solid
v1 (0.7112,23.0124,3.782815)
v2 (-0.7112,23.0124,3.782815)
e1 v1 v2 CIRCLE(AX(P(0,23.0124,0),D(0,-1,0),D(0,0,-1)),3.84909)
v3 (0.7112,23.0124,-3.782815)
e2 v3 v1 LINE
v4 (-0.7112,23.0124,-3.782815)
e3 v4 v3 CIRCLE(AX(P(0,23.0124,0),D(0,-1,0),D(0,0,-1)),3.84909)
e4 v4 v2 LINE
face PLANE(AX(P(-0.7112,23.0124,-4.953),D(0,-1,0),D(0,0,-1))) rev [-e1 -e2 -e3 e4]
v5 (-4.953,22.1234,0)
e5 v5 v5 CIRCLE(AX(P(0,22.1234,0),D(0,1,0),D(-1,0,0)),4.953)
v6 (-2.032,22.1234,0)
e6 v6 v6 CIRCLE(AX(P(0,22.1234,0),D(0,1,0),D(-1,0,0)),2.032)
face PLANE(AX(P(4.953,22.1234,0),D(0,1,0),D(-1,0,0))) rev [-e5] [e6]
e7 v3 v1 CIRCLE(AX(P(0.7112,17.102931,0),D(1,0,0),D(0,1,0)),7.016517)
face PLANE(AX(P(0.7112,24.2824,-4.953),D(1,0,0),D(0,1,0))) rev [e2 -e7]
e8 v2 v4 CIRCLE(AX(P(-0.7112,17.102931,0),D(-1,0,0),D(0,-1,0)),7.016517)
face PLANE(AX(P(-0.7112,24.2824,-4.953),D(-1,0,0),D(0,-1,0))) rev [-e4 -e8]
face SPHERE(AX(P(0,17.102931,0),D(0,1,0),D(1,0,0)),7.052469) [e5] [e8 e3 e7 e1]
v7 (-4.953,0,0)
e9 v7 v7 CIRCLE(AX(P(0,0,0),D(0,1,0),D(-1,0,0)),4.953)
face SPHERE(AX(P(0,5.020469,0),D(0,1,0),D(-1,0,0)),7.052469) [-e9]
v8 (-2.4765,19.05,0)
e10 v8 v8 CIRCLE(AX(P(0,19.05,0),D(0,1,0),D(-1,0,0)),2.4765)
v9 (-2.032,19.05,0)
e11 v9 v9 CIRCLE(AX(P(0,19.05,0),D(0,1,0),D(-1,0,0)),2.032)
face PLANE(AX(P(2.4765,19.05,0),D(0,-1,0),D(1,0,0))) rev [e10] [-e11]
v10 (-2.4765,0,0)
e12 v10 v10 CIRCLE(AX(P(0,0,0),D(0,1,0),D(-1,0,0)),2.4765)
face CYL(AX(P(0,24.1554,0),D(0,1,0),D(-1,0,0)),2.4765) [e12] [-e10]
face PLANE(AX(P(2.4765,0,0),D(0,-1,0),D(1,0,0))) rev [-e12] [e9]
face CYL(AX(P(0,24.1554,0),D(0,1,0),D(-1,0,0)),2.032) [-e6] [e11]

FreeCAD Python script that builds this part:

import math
import FreeCAD as App
import Part
import Sketcher
Q = App.Units.Quantity

doc = App.newDocument("Part")
body = doc.addObject("PartDesign::Body", "Body")

# Sketch on XY plane
sketch1 = body.newObject("Sketcher::SketchObject", "Sketch")
sketch1.AttachmentSupport = (doc.getObject("XY_Plane"), [""])
sketch1.MapMode = "FlatFace"
sketch1.addGeometry(Part.LineSegment(App.Vector(2.03, 22.12, 0), App.Vector(4.95, 22.12, 0)), False)
sketch1.addGeometry(Part.ArcOfCircle(Part.Circle(App.Vector(0, 17.1, 0), App.Vector(0, 0, 1), 7.05), math.radians(45), math.radians(90)), False)
sketch1.addGeometry(Part.LineSegment(App.Vector(0, 24.16, 0), App.Vector(0, -2.03, 0)), False)
sketch1.addGeometry(Part.ArcOfCircle(Part.Circle(App.Vector(0, 5.02, 0), App.Vector(0, 0, 1), 7.05), math.radians(-90), math.radians(-45)), False)
sketch1.addGeometry(Part.LineSegment(App.Vector(4.95, 0, 0), App.Vector(2.48, 0, 0)), False)
sketch1.addGeometry(Part.LineSegment(App.Vector(2.48, 0, 0), App.Vector(2.48, 19.05, 0)), False)
sketch1.addGeometry(Part.LineSegment(App.Vector(2.48, 19.05, 0), App.Vector(2.03, 19.05, 0)), False)
sketch1.addGeometry(Part.LineSegment(App.Vector(2.03, 19.05, 0), App.Vector(2.03, 22.12, 0)), False)
sketch1.addConstraint(Sketcher.Constraint("Coincident", 0, 2, 1, 1))
sketch1.addConstraint(Sketcher.Constraint("Coincident", 1, 2, 2, 1))
sketch1.addConstraint(Sketcher.Constraint("Coincident", 2, 2, 3, 1))
sketch1.addConstraint(Sketcher.Constraint("Coincident", 3, 2, 4, 1))
sketch1.addConstraint(Sketcher.Constraint("Coincident", 4, 2, 5, 1))
sketch1.addConstraint(Sketcher.Constraint("Coincident", 5, 2, 6, 1))
sketch1.addConstraint(Sketcher.Constraint("Coincident", 6, 2, 7, 1))
sketch1.addConstraint(Sketcher.Constraint("Coincident", 7, 2, 0, 1))
sketch1.addConstraint(Sketcher.Constraint("Horizontal", 0))
sketch1.addConstraint(Sketcher.Constraint("Vertical", 2))
sketch1.addConstraint(Sketcher.Constraint("Horizontal", 4))
sketch1.addConstraint(Sketcher.Constraint("Vertical", 5))
sketch1.addConstraint(Sketcher.Constraint("Horizontal", 6))
sketch1.addConstraint(Sketcher.Constraint("Vertical", 7))
sketch1.addConstraint(Sketcher.Constraint("Equal", 1, 3))
sketch1.addConstraint(Sketcher.Constraint("PointOnObject", 1, 3, -2))
sketch1.addConstraint(Sketcher.Constraint("PointOnObject", 3, 3, -2))
sketch1.addConstraint(Sketcher.Constraint("PointOnObject", 1, 2, -2))
sketch1.addConstraint(Sketcher.Constraint("PointOnObject", 3, 2, -1))
sketch1.addConstraint(Sketcher.Constraint("Vertical", 0, 2, 3, 2))
sketch1.addConstraint(Sketcher.Constraint("DistanceY", 5, 1, 5, 2, Q("0.75 in")))
sketch1.addConstraint(Sketcher.Constraint("DistanceX", 0, 1, 0, 2, Q("0.115 in")))
sketch1.addConstraint(Sketcher.Constraint("DistanceY", 2, 2, 2, 1, Q("1.031 in")))
sketch1.addConstraint(Sketcher.Constraint("DistanceY", 7, 1, 7, 2, Q("0.121 in")))
sketch1.addConstraint(Sketcher.Constraint("DistanceX", -1, 1, 6, 2, Q("0.08 in")))
sketch1.addConstraint(Sketcher.Constraint("DistanceX", 4, 2, 4, 1, Q("0.0975 in")))
revolution = body.newObject("PartDesign::Revolution", "Revolution")
revolution.Profile = sketch1
revolution.ReferenceAxis = (sketch1, ["V_Axis"])
revolution.Angle = 360

# Sketch on XY plane
sketch2 = body.newObject("Sketcher::SketchObject", "Sketch001")
sketch2.AttachmentSupport = (doc.getObject("XY_Plane"), [""])
sketch2.MapMode = "FlatFace"
sketch2.addGeometry(Part.LineSegment(App.Vector(-0.7, 24.3, 0), App.Vector(-0.7, 23, 0)), False)
sketch2.addGeometry(Part.LineSegment(App.Vector(-0.7, 23, 0), App.Vector(0.7, 23, 0)), False)
sketch2.addGeometry(Part.LineSegment(App.Vector(0.7, 23, 0), App.Vector(0.7, 24.3, 0)), False)
sketch2.addGeometry(Part.LineSegment(App.Vector(0.7, 24.3, 0), App.Vector(-0.7, 24.3, 0)), False)
sketch2.addConstraint(Sketcher.Constraint("Coincident", 0, 2, 1, 1))
sketch2.addConstraint(Sketcher.Constraint("Coincident", 1, 2, 2, 1))
sketch2.addConstraint(Sketcher.Constraint("Coincident", 2, 2, 3, 1))
sketch2.addConstraint(Sketcher.Constraint("Coincident", 3, 2, 0, 1))
sketch2.addConstraint(Sketcher.Constraint("Vertical", 0))
sketch2.addConstraint(Sketcher.Constraint("Horizontal", 1))
sketch2.addConstraint(Sketcher.Constraint("Vertical", 2))
sketch2.addConstraint(Sketcher.Constraint("Horizontal", 3))
sketch2.addConstraint(Sketcher.Constraint("DistanceY", 0, 2, 0, 1, Q("0.05 in")))
sketch2.addConstraint(Sketcher.Constraint("DistanceX", 1, 1, 1, 2, Q("0.056 in")))
sketch2.addConstraint(Sketcher.Constraint("DistanceX", 0, 2, -1, 1, Q("0.028 in")))
sketch2.addConstraint(Sketcher.Constraint("DistanceY", -1, 1, 0, 2, Q("0.906 in")))
pocket1 = body.newObject("PartDesign::Pocket", "Pocket")
pocket1.Profile = sketch2
pocket1.Type = "ThroughAll"
pocket1.Midplane = True

doc.recompute()
